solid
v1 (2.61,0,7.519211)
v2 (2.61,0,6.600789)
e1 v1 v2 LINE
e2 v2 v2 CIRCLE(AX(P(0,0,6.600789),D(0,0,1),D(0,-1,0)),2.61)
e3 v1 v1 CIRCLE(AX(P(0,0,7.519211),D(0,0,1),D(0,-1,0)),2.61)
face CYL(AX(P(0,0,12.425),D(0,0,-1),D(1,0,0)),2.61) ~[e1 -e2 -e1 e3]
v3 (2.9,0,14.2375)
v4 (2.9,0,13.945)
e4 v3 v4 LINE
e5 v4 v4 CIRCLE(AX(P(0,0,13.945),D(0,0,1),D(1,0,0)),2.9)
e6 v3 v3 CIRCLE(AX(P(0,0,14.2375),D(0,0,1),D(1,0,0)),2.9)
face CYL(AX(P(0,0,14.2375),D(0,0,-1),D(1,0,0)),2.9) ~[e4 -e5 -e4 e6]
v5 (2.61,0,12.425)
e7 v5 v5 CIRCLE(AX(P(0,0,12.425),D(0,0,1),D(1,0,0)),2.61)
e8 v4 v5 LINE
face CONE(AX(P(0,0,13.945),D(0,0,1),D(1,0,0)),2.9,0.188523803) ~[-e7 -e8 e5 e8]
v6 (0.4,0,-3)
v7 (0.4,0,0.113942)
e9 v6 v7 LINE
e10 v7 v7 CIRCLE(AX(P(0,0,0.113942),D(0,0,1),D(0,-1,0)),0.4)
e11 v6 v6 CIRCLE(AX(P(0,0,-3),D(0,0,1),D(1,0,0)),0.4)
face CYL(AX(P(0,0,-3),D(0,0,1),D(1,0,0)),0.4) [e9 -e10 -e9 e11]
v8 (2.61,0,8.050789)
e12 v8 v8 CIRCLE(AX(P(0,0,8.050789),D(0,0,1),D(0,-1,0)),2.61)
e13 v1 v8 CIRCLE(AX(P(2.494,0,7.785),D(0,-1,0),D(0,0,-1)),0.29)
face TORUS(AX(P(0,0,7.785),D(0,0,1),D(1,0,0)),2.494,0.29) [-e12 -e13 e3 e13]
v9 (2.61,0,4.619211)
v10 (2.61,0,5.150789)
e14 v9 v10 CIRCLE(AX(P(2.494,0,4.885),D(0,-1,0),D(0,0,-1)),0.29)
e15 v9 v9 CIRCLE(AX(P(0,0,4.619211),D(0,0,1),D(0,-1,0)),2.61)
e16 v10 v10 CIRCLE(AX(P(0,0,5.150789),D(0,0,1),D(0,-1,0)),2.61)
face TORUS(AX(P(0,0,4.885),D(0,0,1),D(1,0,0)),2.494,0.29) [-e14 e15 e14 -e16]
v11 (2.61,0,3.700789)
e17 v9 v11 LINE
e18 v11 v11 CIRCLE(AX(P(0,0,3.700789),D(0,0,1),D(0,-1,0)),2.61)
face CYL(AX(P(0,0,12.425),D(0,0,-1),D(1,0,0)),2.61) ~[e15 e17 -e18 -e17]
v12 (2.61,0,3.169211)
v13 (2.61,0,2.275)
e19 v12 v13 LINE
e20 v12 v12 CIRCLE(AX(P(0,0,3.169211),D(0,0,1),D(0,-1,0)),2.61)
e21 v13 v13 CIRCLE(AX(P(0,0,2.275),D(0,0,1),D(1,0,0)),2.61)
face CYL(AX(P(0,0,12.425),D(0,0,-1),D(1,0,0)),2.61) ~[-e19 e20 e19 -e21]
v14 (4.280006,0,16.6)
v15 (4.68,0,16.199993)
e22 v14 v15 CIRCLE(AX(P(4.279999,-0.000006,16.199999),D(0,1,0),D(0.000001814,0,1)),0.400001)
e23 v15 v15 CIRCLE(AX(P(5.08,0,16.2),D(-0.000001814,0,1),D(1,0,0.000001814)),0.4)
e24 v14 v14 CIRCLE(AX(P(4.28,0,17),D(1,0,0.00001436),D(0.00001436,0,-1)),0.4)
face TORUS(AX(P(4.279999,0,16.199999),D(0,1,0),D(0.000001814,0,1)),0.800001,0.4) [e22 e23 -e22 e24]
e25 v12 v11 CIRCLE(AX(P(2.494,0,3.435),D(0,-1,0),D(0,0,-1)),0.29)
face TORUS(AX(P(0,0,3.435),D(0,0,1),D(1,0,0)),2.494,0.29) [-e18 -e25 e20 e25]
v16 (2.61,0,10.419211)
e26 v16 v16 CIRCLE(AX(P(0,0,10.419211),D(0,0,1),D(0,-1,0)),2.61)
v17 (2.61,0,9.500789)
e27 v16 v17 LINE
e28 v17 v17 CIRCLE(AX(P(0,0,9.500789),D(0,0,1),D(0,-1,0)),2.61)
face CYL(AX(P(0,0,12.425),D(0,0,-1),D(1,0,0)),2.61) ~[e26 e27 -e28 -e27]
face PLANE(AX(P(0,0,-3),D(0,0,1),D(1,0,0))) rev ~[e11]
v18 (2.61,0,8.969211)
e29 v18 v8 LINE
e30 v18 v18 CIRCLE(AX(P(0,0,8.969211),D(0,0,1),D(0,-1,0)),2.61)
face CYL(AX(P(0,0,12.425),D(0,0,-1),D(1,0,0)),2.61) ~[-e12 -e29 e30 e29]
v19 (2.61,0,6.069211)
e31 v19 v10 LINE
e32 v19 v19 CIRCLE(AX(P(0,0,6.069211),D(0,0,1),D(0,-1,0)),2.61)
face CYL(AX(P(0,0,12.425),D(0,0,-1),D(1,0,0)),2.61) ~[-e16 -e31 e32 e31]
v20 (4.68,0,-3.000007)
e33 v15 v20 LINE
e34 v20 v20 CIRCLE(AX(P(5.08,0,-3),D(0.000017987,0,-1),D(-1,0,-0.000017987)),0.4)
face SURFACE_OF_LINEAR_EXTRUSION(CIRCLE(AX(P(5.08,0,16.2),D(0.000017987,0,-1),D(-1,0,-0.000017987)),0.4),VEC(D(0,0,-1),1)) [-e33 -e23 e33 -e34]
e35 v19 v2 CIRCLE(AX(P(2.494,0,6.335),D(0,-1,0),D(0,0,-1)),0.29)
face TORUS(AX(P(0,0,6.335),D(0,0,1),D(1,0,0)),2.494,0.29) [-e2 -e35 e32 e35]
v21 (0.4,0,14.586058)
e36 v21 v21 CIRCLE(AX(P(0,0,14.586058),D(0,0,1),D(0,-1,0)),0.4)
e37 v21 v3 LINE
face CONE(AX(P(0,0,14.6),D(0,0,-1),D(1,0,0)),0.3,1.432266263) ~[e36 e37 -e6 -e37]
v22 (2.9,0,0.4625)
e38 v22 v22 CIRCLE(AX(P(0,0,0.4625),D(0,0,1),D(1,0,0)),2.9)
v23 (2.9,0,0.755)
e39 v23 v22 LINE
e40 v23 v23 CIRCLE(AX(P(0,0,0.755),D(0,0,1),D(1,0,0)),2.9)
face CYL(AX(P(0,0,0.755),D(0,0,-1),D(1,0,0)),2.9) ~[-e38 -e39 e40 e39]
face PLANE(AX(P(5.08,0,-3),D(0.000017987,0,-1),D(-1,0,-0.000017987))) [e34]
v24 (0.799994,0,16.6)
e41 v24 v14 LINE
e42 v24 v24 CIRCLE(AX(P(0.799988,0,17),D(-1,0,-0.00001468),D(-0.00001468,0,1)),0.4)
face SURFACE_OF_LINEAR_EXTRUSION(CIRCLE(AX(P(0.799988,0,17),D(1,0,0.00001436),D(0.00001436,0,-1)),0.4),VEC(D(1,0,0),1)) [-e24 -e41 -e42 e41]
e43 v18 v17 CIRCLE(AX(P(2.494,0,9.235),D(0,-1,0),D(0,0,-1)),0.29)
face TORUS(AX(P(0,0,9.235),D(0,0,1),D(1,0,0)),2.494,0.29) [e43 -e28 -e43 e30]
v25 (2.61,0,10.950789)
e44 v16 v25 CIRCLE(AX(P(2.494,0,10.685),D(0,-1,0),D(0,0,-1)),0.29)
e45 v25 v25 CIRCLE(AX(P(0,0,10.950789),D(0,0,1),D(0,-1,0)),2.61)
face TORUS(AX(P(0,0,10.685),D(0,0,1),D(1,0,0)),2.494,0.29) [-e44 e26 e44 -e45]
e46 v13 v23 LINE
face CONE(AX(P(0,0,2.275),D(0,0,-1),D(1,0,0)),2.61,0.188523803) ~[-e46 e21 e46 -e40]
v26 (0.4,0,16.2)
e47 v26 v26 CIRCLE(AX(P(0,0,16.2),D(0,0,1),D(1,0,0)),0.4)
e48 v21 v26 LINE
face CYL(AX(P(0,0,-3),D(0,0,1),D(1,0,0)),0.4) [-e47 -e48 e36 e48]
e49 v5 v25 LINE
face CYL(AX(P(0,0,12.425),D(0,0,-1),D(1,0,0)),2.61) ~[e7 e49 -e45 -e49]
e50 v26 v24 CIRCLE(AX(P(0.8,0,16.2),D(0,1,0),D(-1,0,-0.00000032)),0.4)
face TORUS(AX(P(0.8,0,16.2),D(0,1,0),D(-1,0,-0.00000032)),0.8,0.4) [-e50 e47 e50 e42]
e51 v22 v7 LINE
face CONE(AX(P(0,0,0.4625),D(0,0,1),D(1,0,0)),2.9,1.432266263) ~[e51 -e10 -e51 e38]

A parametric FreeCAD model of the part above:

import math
import FreeCAD as App
import Part
import Sketcher

V = App.Vector


def add_polygon(sketch, points):
    """Adds a closed chain of lines whose ends are joined by coincident constraints."""
    first, n = sketch.GeometryCount, len(points)
    for a, b in zip(points, points[1:] + points[:1]):
        sketch.addGeometry(Part.LineSegment(App.Vector(*a, 0), App.Vector(*b, 0)), False)
    for i in range(n):
        sketch.addConstraint(Sketcher.Constraint("Coincident", first + i, 2, first + (i + 1) % n, 1))

doc = App.newDocument("Part")
body = doc.addObject("PartDesign::Body", "Body")

# Sketch on XZ plane
sketch1 = doc.addObject("Sketcher::SketchObject", "Sketch")
body.addObject(sketch1)
sketch1.AttachmentSupport = (doc.XZ_Plane, [""])
sketch1.MapMode = "FlatFace"
add_polygon(sketch1, [(0, 14.6), (0, 0.1), (0.3, 0.1), (2.9, 0.46), (2.9, 0.76), (2.61, 2.27), (2.61, 12.43), (2.9, 13.95), (2.9, 14.24), (0.3, 14.6)])  # lines 0-9
sketch1.addConstraint([
    Sketcher.Constraint("Vertical", 0),
    Sketcher.Constraint("Horizontal", 1),
    Sketcher.Constraint("Vertical", 3),
    Sketcher.Constraint("Vertical", 5),
    Sketcher.Constraint("Vertical", 7),
    Sketcher.Constraint("Horizontal", 9),
    Sketcher.Constraint("PointOnObject", 0, 2, -2),
    Sketcher.Constraint("Vertical", 3, 2, 6, 2),
    Sketcher.Constraint("Vertical", 1, 2, 8, 2),
    Sketcher.Constraint("Equal", 3, 7),
    Sketcher.Constraint("Equal", 4, 6),
    Sketcher.Constraint("Equal", 2, 8),
    Sketcher.Constraint("DistanceX", 1, 1, 1, 2, 0.3),
    Sketcher.Constraint("DistanceY", 0, 2, 0, 1, 14.5),
    Sketcher.Constraint("DistanceY", 5, 1, 5, 2, 10.15),
    Sketcher.Constraint("DistanceY", -1, 1, 0, 2, 0.1),
    Sketcher.Constraint("DistanceX", -1, 1, 2, 2, 2.9),
    Sketcher.Constraint("DistanceX", -1, 1, 4, 2, 2.61),
    Sketcher.Constraint("DistanceY", 3, 2, 4, 2, 1.52),
    Sketcher.Constraint("DistanceY", 3, 1, 3, 2, 0.2925),
])
revolution = doc.addObject("PartDesign::Revolution", "Revolution")
body.addObject(revolution)
revolution.Profile = sketch1
revolution.ReferenceAxis = (sketch1, ["V_Axis"])
revolution.Angle = 360
body2 = doc.addObject("PartDesign::Body", "Body001")

# Sketch on XY plane
sketch2 = doc.addObject("Sketcher::SketchObject", "Sketch001")
body2.addObject(sketch2)
sketch2.AttachmentSupport = (doc.getObject("XY_Plane001"), [""])
sketch2.MapMode = "FlatFace"
sketch2.AttachmentOffset = App.Placement(V(0, 0, -2), App.Rotation())
sketch2.addGeometry(Part.Circle(V(0, 0, 0), V(0, 0, 1), 0.4), False)
sketch2.addConstraint([
    Sketcher.Constraint("Coincident", 0, 3, -1, 1),
    Sketcher.Constraint("Diameter", 0, 0.8),
])

# Sketch on XZ plane
sketch3 = doc.addObject("Sketcher::SketchObject", "Sketch002")
body2.addObject(sketch3)
sketch3.AttachmentSupport = (doc.getObject("XZ_Plane001"), [""])
sketch3.MapMode = "FlatFace"
sketch3.addGeometry([
    Part.LineSegment(V(0, -3, 0), V(0, 16.2, 0)),  # 0
    Part.ArcOfCircle(Part.Circle(V(0.8, 16.2, 0), V(0, 0, 1), 0.8), math.radians(90), math.radians(180)),  # 1
    Part.LineSegment(V(0.8, 17, 0), V(4.3, 17, 0)),  # 2
    Part.ArcOfCircle(Part.Circle(V(4.3, 16.2, 0), V(0, 0, 1), 0.8), math.radians(0), math.radians(90)),  # 3
    Part.LineSegment(V(5.1, 16.2, 0), V(5.1, -3, 0)),  # 4
], False)
sketch3.addConstraint([
    Sketcher.Constraint("Tangent", 0, 2, 1, 2),
    Sketcher.Constraint("Coincident", 1, 1, 2, 1),
    Sketcher.Constraint("Tangent", 2, 2, 3, 2),
    Sketcher.Constraint("Tangent", 3, 1, 4, 1),
    Sketcher.Constraint("Vertical", 0),
    Sketcher.Constraint("Horizontal", 2),
    Sketcher.Constraint("Vertical", 4),
    Sketcher.Constraint("Equal", 1, 3),
    Sketcher.Constraint("PointOnObject", 0, 1, -2),
    Sketcher.Constraint("Horizontal", 0, 1, 4, 2),
    Sketcher.Constraint("Radius", 1, 0.8),
    Sketcher.Constraint("DistanceY", 0, 1, 0, 2, 19.2),
    Sketcher.Constraint("DistanceY", 0, 1, -1, 1, 3.0),
    Sketcher.Constraint("DistanceX", -1, 1, 3, 3, 4.279999),
    Sketcher.Constraint("DistanceX", 2, 1, 2, 2, 3.480012),
])
doc.recompute()

additivepipe = doc.addObject("PartDesign::AdditivePipe", "AdditivePipe")
body2.addObject(additivepipe)
additivepipe.Profile = sketch2
additivepipe.Spine = (sketch3, ["Edge1", "Edge2", "Edge3", "Edge4", "Edge5"])
body3 = doc.addObject("PartDesign::Body", "Body002")

# Sketch on XZ plane
sketch4 = doc.addObject("Sketcher::SketchObject", "Sketch003")
body3.addObject(sketch4)
sketch4.AttachmentSupport = (doc.getObject("XZ_Plane002"), [""])
sketch4.MapMode = "FlatFace"
sketch4.addGeometry([
    Part.LineSegment(V(2.32, 11.85, 0), V(2.32, 2.27, 0)),  # 0
    Part.LineSegment(V(2.32, 2.27, 0), V(2.49, 2.27, 0)),  # 1
    Part.LineSegment(V(2.49, 2.27, 0), V(2.49, 3.15, 0)),  # 2
    Part.ArcOfCircle(Part.Circle(V(2.49, 3.44, 0), V(0, 0, 1), 0.29), math.radians(-90), math.radians(90)),  # 3
    Part.LineSegment(V(2.49, 3.73, 0), V(2.49, 4.59, 0)),  # 4
    Part.ArcOfCircle(Part.Circle(V(2.49, 4.88, 0), V(0, 0, 1), 0.29), math.radians(-90), math.radians(90)),  # 5
    Part.LineSegment(V(2.49, 5.17, 0), V(2.49, 6.04, 0)),  # 6
    Part.ArcOfCircle(Part.Circle(V(2.49, 6.33, 0), V(0, 0, 1), 0.29), math.radians(-90), math.radians(90)),  # 7
    Part.LineSegment(V(2.49, 6.62, 0), V(2.49, 7.5, 0)),  # 8
    Part.ArcOfCircle(Part.Circle(V(2.49, 7.79, 0), V(0, 0, 1), 0.29), math.radians(-90), math.radians(90)),  # 9
    Part.LineSegment(V(2.49, 8.07, 0), V(2.49, 8.95, 0)),  # 10
    Part.ArcOfCircle(Part.Circle(V(2.49, 9.23, 0), V(0, 0, 1), 0.29), math.radians(-90), math.radians(90)),  # 11
    Part.LineSegment(V(2.49, 9.53, 0), V(2.49, 10.39, 0)),  # 12
    Part.ArcOfCircle(Part.Circle(V(2.49, 10.69, 0), V(0, 0, 1), 0.29), math.radians(-90), math.radians(90)),  # 13
    Part.LineSegment(V(2.49, 10.97, 0), V(2.49, 11.85, 0)),  # 14
    Part.LineSegment(V(2.49, 11.85, 0), V(2.32, 11.85, 0)),  # 15
], False)
sketch4.addConstraint([
    Sketcher.Constraint("Coincident", 0, 2, 1, 1),
    Sketcher.Constraint("Coincident", 1, 2, 2, 1),
    Sketcher.Constraint("Coincident", 2, 2, 3, 1),
    Sketcher.Constraint("Coincident", 3, 2, 4, 1),
    Sketcher.Constraint("Coincident", 4, 2, 5, 1),
    Sketcher.Constraint("Coincident", 5, 2, 6, 1),
    Sketcher.Constraint("Coincident", 6, 2, 7, 1),
    Sketcher.Constraint("Coincident", 7, 2, 8, 1),
    Sketcher.Constraint("Coincident", 8, 2, 9, 1),
    Sketcher.Constraint("Coincident", 9, 2, 10, 1),
    Sketcher.Constraint("Coincident", 10, 2, 11, 1),
    Sketcher.Constraint("Coincident", 11, 2, 12, 1),
    Sketcher.Constraint("Coincident", 12, 2, 13, 1),
    Sketcher.Constraint("Coincident", 13, 2, 14, 1),
    Sketcher.Constraint("Coincident", 14, 2, 15, 1),
    Sketcher.Constraint("Coincident", 15, 2, 0, 1),
    Sketcher.Constraint("Vertical", 0),
    Sketcher.Constraint("Horizontal", 1),
    Sketcher.Constraint("Vertical", 2),
    Sketcher.Constraint("Vertical", 4),
    Sketcher.Constraint("Vertical", 6),
    Sketcher.Constraint("Vertical", 8),
    Sketcher.Constraint("Vertical", 10),
    Sketcher.Constraint("Vertical", 12),
    Sketcher.Constraint("Vertical", 14),
    Sketcher.Constraint("Horizontal", 15),
    Sketcher.Constraint("Equal", 3, 5),
    Sketcher.Constraint("Equal", 5, 7),
    Sketcher.Constraint("Equal", 7, 9),
    Sketcher.Constraint("Equal", 9, 11),
    Sketcher.Constraint("Equal", 11, 13),
    Sketcher.Constraint("Vertical", 3, 3, 5, 3),
    Sketcher.Constraint("Vertical", 5, 3, 7, 3),
    Sketcher.Constraint("Vertical", 7, 3, 9, 3),
    Sketcher.Constraint("Vertical", 9, 3, 11, 3),
    Sketcher.Constraint("Vertical", 11, 3, 13, 3),
    Sketcher.Constraint("Vertical", 13, 3, 1, 2),
    Sketcher.Constraint("Vertical", 2, 2, 3, 2),
    Sketcher.Constraint("Vertical", 4, 2, 5, 2),
    Sketcher.Constraint("Vertical", 6, 2, 7, 2),
    Sketcher.Constraint("Vertical", 8, 2, 9, 2),
    Sketcher.Constraint("Vertical", 10, 2, 11, 2),
    Sketcher.Constraint("Vertical", 12, 2, 13, 2),
    Sketcher.Constraint("Equal", 2, 4),
    Sketcher.Constraint("Equal", 4, 6),
    Sketcher.Constraint("Equal", 6, 8),
    Sketcher.Constraint("Equal", 8, 10),
    Sketcher.Constraint("Equal", 10, 12),
    Sketcher.Constraint("Equal", 12, 14),
    Sketcher.Constraint("Radius", 3, 0.29),
    Sketcher.Constraint("DistanceY", 0, 2, 0, 1, 9.57),
    Sketcher.Constraint("DistanceX", 1, 1, 1, 2, 0.174),
    Sketcher.Constraint("DistanceX", -1, 1, 0, 2, 2.32),
    Sketcher.Constraint("DistanceY", -1, 1, 3, 3, 3.435),
])
revolution2 = doc.addObject("PartDesign::Revolution", "Revolution001")
body3.addObject(revolution2)
revolution2.Profile = sketch4
revolution2.ReferenceAxis = (sketch4, ["V_Axis"])
revolution2.Angle = 360
doc.recompute()

boolean = doc.addObject("PartDesign::Boolean", "Boolean")
body3.addObject(boolean)
boolean.Type = "Fuse"
boolean.addObjects([body])
doc.recompute()

boolean2 = doc.addObject("PartDesign::Boolean", "Boolean001")
body3.addObject(boolean2)
boolean2.Type = "Fuse"
boolean2.addObjects([body2])

doc.recompute()
